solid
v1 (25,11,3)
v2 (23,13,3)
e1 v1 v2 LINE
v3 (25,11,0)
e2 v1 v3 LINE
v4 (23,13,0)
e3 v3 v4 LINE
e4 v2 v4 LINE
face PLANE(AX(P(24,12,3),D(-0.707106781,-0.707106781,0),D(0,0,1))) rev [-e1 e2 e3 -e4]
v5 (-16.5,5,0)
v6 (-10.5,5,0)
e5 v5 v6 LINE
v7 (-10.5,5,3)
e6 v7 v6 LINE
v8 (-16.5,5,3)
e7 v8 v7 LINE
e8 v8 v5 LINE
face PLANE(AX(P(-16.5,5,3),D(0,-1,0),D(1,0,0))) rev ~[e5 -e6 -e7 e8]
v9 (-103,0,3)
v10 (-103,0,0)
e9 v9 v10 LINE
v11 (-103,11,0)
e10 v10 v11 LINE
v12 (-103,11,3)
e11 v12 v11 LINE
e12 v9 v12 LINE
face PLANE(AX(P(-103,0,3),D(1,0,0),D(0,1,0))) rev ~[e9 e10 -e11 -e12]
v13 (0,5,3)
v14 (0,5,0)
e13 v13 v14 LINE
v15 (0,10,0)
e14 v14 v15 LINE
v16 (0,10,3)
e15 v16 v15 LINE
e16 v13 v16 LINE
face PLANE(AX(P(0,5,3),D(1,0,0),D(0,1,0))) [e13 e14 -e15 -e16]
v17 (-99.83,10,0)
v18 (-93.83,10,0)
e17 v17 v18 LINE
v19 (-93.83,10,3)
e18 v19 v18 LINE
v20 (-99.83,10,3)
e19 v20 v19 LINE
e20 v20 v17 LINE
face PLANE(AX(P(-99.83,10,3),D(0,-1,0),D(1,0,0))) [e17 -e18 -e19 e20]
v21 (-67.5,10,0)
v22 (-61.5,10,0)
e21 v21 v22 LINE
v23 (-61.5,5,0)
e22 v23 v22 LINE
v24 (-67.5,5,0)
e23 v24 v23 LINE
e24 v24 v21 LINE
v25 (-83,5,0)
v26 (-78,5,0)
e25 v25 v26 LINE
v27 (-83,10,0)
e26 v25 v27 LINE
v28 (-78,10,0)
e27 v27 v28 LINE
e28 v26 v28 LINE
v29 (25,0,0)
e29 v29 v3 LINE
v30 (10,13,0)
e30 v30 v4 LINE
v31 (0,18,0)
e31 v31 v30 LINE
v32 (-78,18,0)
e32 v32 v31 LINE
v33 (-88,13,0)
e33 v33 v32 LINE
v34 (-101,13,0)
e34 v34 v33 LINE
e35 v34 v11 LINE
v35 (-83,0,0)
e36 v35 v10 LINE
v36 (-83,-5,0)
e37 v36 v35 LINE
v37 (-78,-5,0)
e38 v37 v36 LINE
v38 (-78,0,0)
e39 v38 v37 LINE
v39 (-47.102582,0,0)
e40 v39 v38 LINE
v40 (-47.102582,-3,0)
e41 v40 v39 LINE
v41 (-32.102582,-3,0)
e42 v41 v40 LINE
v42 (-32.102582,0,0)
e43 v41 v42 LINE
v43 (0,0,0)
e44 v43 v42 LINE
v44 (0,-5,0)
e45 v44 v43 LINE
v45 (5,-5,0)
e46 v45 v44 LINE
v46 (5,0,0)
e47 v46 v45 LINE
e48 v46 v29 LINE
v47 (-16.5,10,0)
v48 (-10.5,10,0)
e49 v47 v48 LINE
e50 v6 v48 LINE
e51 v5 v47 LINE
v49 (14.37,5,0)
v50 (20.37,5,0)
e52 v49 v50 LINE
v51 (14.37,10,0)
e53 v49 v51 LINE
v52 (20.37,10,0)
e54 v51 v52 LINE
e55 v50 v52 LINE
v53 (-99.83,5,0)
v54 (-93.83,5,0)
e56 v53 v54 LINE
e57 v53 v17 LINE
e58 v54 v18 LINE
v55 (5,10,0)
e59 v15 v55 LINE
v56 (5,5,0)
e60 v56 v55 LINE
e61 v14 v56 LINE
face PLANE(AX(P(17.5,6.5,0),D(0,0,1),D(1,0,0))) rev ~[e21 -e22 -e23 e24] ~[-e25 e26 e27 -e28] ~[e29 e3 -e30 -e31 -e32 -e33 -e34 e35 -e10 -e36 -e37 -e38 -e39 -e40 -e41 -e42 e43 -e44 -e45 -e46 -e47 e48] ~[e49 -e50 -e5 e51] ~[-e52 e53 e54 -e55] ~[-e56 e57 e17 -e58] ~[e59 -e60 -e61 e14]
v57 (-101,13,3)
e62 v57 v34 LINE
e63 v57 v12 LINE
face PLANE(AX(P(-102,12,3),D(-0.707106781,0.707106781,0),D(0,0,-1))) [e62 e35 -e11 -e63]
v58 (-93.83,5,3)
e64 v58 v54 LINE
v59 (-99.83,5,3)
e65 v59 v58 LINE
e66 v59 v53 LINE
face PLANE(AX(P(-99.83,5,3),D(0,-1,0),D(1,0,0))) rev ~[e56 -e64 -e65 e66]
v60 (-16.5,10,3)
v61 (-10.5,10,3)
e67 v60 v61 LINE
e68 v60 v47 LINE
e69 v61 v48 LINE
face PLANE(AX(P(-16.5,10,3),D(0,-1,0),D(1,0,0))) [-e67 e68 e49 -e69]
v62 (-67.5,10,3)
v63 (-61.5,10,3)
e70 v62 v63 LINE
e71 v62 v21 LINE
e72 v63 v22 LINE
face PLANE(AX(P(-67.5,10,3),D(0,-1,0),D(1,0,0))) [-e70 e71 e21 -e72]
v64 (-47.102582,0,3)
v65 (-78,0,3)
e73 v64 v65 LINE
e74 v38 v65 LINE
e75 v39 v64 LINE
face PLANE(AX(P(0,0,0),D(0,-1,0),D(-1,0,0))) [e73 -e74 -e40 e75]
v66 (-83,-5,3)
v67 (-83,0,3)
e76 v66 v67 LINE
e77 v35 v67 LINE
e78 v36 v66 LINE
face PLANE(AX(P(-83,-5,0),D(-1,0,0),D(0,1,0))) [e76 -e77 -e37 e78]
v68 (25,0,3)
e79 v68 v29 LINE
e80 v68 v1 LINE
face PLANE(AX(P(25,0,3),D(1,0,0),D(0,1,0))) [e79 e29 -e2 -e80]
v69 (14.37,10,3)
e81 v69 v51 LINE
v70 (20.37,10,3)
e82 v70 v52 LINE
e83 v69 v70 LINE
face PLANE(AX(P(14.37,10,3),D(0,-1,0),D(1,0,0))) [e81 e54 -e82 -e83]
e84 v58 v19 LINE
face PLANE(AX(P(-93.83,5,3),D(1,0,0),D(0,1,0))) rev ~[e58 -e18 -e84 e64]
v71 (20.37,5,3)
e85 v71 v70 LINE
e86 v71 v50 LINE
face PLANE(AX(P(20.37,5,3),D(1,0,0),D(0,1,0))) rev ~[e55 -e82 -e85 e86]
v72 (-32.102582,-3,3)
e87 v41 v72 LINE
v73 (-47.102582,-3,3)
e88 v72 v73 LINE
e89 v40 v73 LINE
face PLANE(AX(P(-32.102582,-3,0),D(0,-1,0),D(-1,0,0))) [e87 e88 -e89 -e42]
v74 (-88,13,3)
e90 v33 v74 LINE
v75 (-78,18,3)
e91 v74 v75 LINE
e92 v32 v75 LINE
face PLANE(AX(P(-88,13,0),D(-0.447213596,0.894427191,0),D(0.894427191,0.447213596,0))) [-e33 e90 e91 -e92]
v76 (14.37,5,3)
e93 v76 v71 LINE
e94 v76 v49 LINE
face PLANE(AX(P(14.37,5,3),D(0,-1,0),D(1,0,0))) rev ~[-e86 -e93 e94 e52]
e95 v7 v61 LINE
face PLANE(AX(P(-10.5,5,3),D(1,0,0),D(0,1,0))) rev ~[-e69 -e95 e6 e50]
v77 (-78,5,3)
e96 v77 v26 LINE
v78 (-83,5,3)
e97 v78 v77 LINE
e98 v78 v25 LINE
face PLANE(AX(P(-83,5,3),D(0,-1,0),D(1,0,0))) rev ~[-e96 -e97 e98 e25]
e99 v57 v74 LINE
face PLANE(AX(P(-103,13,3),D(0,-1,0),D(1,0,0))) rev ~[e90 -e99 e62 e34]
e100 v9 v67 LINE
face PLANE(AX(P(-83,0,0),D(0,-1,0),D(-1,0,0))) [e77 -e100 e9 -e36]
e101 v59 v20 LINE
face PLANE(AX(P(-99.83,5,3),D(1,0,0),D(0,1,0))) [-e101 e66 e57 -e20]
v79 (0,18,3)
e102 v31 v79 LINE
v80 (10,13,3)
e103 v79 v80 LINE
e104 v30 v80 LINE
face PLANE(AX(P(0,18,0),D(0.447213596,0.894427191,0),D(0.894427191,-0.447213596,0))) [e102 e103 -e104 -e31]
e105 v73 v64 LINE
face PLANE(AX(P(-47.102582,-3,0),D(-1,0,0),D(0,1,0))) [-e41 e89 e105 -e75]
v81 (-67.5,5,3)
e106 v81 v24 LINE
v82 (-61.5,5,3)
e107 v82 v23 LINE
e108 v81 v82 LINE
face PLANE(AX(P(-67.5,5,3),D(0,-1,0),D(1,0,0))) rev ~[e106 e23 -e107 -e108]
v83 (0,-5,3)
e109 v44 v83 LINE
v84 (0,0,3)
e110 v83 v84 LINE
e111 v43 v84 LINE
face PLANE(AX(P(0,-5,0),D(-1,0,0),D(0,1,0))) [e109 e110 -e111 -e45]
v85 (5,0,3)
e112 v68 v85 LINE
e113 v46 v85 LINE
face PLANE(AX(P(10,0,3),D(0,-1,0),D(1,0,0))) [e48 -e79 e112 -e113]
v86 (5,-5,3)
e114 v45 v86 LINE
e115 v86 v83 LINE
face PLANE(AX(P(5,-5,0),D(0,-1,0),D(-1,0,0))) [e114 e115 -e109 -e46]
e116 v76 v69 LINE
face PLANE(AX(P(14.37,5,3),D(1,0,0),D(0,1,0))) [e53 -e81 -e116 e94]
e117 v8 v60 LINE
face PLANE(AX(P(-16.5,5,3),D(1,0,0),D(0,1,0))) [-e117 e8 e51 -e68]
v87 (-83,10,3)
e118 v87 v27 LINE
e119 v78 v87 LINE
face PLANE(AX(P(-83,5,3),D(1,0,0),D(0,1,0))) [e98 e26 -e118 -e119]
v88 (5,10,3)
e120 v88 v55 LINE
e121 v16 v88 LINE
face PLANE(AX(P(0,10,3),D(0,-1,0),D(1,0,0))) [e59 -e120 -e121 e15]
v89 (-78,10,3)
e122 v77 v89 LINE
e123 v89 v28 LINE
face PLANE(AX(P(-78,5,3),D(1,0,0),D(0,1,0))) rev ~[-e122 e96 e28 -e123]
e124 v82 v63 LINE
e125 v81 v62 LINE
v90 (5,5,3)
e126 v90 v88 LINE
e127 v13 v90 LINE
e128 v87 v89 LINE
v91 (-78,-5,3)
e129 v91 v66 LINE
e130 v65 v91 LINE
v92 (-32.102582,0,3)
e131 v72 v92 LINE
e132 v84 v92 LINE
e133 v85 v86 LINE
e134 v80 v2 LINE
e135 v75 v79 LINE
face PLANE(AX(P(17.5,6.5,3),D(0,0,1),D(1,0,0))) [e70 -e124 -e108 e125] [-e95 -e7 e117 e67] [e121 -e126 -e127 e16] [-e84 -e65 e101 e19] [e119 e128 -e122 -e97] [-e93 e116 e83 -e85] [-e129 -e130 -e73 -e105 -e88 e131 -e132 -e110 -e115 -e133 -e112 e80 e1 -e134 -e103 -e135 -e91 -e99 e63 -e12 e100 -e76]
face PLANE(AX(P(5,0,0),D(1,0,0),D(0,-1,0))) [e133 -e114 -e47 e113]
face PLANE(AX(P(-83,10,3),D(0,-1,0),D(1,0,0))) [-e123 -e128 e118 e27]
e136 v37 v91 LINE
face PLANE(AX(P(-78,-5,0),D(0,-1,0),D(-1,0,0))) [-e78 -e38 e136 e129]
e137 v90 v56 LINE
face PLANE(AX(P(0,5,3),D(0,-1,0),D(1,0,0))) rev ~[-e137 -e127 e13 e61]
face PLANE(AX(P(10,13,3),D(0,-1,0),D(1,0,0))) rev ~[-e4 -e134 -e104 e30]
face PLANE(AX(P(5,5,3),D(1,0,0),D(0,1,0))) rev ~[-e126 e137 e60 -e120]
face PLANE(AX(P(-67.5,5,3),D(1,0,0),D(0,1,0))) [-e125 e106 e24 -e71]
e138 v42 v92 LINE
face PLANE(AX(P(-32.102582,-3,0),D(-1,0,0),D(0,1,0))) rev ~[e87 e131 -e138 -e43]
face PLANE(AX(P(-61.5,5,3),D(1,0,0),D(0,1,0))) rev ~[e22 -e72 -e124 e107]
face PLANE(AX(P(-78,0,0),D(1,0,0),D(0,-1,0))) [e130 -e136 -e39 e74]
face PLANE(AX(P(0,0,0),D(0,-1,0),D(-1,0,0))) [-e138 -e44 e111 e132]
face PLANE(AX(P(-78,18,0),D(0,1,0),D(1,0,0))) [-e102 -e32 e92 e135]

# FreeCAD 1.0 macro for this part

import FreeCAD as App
import Part
import Sketcher

V = App.Vector
Q = App.Units.Quantity


def edges_at(feature, points):
    """Names of the edges that pass closest to the given points."""
    edges = feature.Shape.Edges
    near = lambda p: min(range(len(edges)), key=lambda i: edges[i].distToShape(Part.Vertex(*p))[0])
    return sorted({f"Edge{near(p) + 1}" for p in points})

doc = App.newDocument("Part")
body = doc.addObject("PartDesign::Body", "Body")

# Sketch on XY plane
sketch1 = doc.addObject("Sketcher::SketchObject", "Sketch")
body.addObject(sketch1)
sketch1.AttachmentSupport = (doc.XY_Plane, [""])
sketch1.MapMode = "FlatFace"
sketch1.addGeometry([
    Part.LineSegment(V(-78, 0, 0), V(0, 0, 0)),  # 0
    Part.LineSegment(V(0, 0, 0), V(0, -5, 0)),  # 1
    Part.LineSegment(V(0, -5, 0), V(5, -5, 0)),  # 2
    Part.LineSegment(V(5, -5, 0), V(5, 0, 0)),  # 3
    Part.LineSegment(V(5, 0, 0), V(10, 0, 0)),  # 4
    Part.LineSegment(V(10, 0, 0), V(10, 13, 0)),  # 5
    Part.LineSegment(V(10, 13, 0), V(0, 18, 0)),  # 6
    Part.LineSegment(V(0, 18, 0), V(-78, 18, 0)),  # 7
    Part.LineSegment(V(-78, 18, 0), V(-88, 13, 0)),  # 8
    Part.LineSegment(V(-88, 13, 0), V(-88, 0, 0)),  # 9
    Part.LineSegment(V(-88, 0, 0), V(-83, 0, 0)),  # 10
    Part.LineSegment(V(-83, 0, 0), V(-83, -5, 0)),  # 11
    Part.LineSegment(V(-83, -5, 0), V(-78, -5, 0)),  # 12
    Part.LineSegment(V(-78, -5, 0), V(-78, 0, 0)),  # 13
], False)
sketch1.addConstraint([
    Sketcher.Constraint("Coincident", 0, 2, 1, 1),
    Sketcher.Constraint("Coincident", 1, 2, 2, 1),
    Sketcher.Constraint("Coincident", 2, 2, 3, 1),
    Sketcher.Constraint("Coincident", 3, 2, 4, 1),
    Sketcher.Constraint("Coincident", 4, 2, 5, 1),
    Sketcher.Constraint("Coincident", 5, 2, 6, 1),
    Sketcher.Constraint("Coincident", 6, 2, 7, 1),
    Sketcher.Constraint("Coincident", 7, 2, 8, 1),
    Sketcher.Constraint("Coincident", 8, 2, 9, 1),
    Sketcher.Constraint("Coincident", 9, 2, 10, 1),
    Sketcher.Constraint("Coincident", 10, 2, 11, 1),
    Sketcher.Constraint("Coincident", 11, 2, 12, 1),
    Sketcher.Constraint("Coincident", 12, 2, 13, 1),
    Sketcher.Constraint("Coincident", 13, 2, 0, 1),
    Sketcher.Constraint("Horizontal", 0),
    Sketcher.Constraint("Vertical", 1),
    Sketcher.Constraint("Horizontal", 2),
    Sketcher.Constraint("Vertical", 3),
    Sketcher.Constraint("Horizontal", 4),
    Sketcher.Constraint("Vertical", 5),
    Sketcher.Constraint("Horizontal", 7),
    Sketcher.Constraint("Vertical", 9),
    Sketcher.Constraint("Horizontal", 10),
    Sketcher.Constraint("Vertical", 11),
    Sketcher.Constraint("Horizontal", 12),
    Sketcher.Constraint("Vertical", 13),
    Sketcher.Constraint("Coincident", 0, 2, -1, 1),
    Sketcher.Constraint("PointOnObject", 3, 2, -1),
    Sketcher.Constraint("PointOnObject", 6, 2, -2),
    Sketcher.Constraint("PointOnObject", 9, 2, -1),
    Sketcher.Constraint("Horizontal", 5, 2, 8, 2),
    Sketcher.Constraint("Horizontal", 2, 2, 11, 2),
    Sketcher.Constraint("Vertical", 7, 2, 12, 2),
    Sketcher.Constraint("Equal", 2, 4),
    Sketcher.Constraint("Equal", 4, 10),
    Sketcher.Constraint("Equal", 10, 12),
    Sketcher.Constraint("Equal", 12, 1),
    Sketcher.Constraint("DistanceX", 0, 1, 0, 2, Q("78 mm")),
    Sketcher.Constraint("DistanceX", 2, 1, 2, 2, Q("5 mm")),
    Sketcher.Constraint("DistanceY", 5, 1, 5, 2, Q("13 mm")),
    Sketcher.Constraint("DistanceY", -1, 1, 6, 2, Q("18 mm")),
])
pad1 = doc.addObject("PartDesign::Pad", "Pad")
body.addObject(pad1)
pad1.Profile = sketch1
pad1.Length = 3

# Sketch on XY plane
sketch2 = doc.addObject("Sketcher::SketchObject", "Sketch001")
body.addObject(sketch2)
sketch2.AttachmentSupport = (doc.XY_Plane, [""])
sketch2.MapMode = "FlatFace"
sketch2.AttachmentOffset = App.Placement(V(0, 0, 3), App.Rotation())
sketch2.addGeometry([
    Part.LineSegment(V(10, 13, 0), V(10, 0, 0)),  # 0
    Part.LineSegment(V(10, 0, 0), V(25, 0, 0)),  # 1
    Part.LineSegment(V(25, 0, 0), V(25, 13, 0)),  # 2
    Part.LineSegment(V(25, 13, 0), V(10, 13, 0)),  # 3
    Part.LineSegment(V(-103, 13, 0), V(-103, 0, 0)),  # 4
    Part.LineSegment(V(-103, 0, 0), V(-88, 0, 0)),  # 5
    Part.LineSegment(V(-88, 0, 0), V(-88, 13, 0)),  # 6
    Part.LineSegment(V(-88, 13, 0), V(-103, 13, 0)),  # 7
], False)
sketch2.addConstraint([
    Sketcher.Constraint("Coincident", 0, 2, 1, 1),
    Sketcher.Constraint("Coincident", 1, 2, 2, 1),
    Sketcher.Constraint("Coincident", 2, 2, 3, 1),
    Sketcher.Constraint("Coincident", 3, 2, 0, 1),
    Sketcher.Constraint("Coincident", 4, 2, 5, 1),
    Sketcher.Constraint("Coincident", 5, 2, 6, 1),
    Sketcher.Constraint("Coincident", 6, 2, 7, 1),
    Sketcher.Constraint("Coincident", 7, 2, 4, 1),
    Sketcher.Constraint("Vertical", 0),
    Sketcher.Constraint("Horizontal", 1),
    Sketcher.Constraint("Vertical", 2),
    Sketcher.Constraint("Horizontal", 3),
    Sketcher.Constraint("Vertical", 4),
    Sketcher.Constraint("Horizontal", 5),
    Sketcher.Constraint("Vertical", 6),
    Sketcher.Constraint("Horizontal", 7),
    Sketcher.Constraint("PointOnObject", 0, 2, -1),
    Sketcher.Constraint("PointOnObject", 4, 2, -1),
    Sketcher.Constraint("Horizontal", 3, 2, 6, 2),
    Sketcher.Constraint("Equal", 3, 5),
    Sketcher.Constraint("DistanceX", 1, 1, 1, 2, Q("15 mm")),
    Sketcher.Constraint("DistanceY", 0, 2, 0, 1, Q("13 mm")),
    Sketcher.Constraint("DistanceX", -1, 1, 0, 2, Q("10 mm")),
    Sketcher.Constraint("DistanceX", 4, 2, -1, 1, Q("103 mm")),
])
pad2 = doc.addObject("PartDesign::Pad", "Pad001")
body.addObject(pad2)
pad2.Profile = sketch2
pad2.Length = 3
pad2.Reversed = True

# Sketch on XY plane
sketch3 = doc.addObject("Sketcher::SketchObject", "Sketch002")
body.addObject(sketch3)
sketch3.AttachmentSupport = (doc.XY_Plane, [""])
sketch3.MapMode = "FlatFace"
sketch3.AttachmentOffset = App.Placement(V(0, 0, 3), App.Rotation())
sketch3.addGeometry([
    Part.LineSegment(V(-68, 10, 0), V(-68, 5, 0)),  # 0
    Part.LineSegment(V(-68, 5, 0), V(-62, 5, 0)),  # 1
    Part.LineSegment(V(-62, 5, 0), V(-62, 10, 0)),  # 2
    Part.LineSegment(V(-62, 10, 0), V(-68, 10, 0)),  # 3
    Part.LineSegment(V(-16, 10, 0), V(-16, 5, 0)),  # 4
    Part.LineSegment(V(-16, 5, 0), V(-10, 5, 0)),  # 5
    Part.LineSegment(V(-10, 5, 0), V(-10, 10, 0)),  # 6
    Part.LineSegment(V(-10, 10, 0), V(-16, 10, 0)),  # 7
    Part.LineSegment(V(0, 10, 0), V(0, 5, 0)),  # 8
    Part.LineSegment(V(0, 5, 0), V(5, 5, 0)),  # 9
    Part.LineSegment(V(5, 5, 0), V(5, 10, 0)),  # 10
    Part.LineSegment(V(5, 10, 0), V(0, 10, 0)),  # 11
    Part.LineSegment(V(-83, 10, 0), V(-83, 5, 0)),  # 12
    Part.LineSegment(V(-83, 5, 0), V(-78, 5, 0)),  # 13
    Part.LineSegment(V(-78, 5, 0), V(-78, 10, 0)),  # 14
    Part.LineSegment(V(-78, 10, 0), V(-83, 10, 0)),  # 15
    Part.LineSegment(V(14, 10, 0), V(14, 5, 0)),  # 16
    Part.LineSegment(V(14, 5, 0), V(20, 5, 0)),  # 17
    Part.LineSegment(V(20, 5, 0), V(20, 10, 0)),  # 18
    Part.LineSegment(V(20, 10, 0), V(14, 10, 0)),  # 19
    Part.LineSegment(V(-100, 10, 0), V(-100, 5, 0)),  # 20
    Part.LineSegment(V(-100, 5, 0), V(-94, 5, 0)),  # 21
    Part.LineSegment(V(-94, 5, 0), V(-94, 10, 0)),  # 22
    Part.LineSegment(V(-94, 10, 0), V(-100, 10, 0)),  # 23
], False)
sketch3.addConstraint([
    Sketcher.Constraint("Coincident", 0, 2, 1, 1),
    Sketcher.Constraint("Coincident", 1, 2, 2, 1),
    Sketcher.Constraint("Coincident", 2, 2, 3, 1),
    Sketcher.Constraint("Coincident", 3, 2, 0, 1),
    Sketcher.Constraint("Coincident", 4, 2, 5, 1),
    Sketcher.Constraint("Coincident", 5, 2, 6, 1),
    Sketcher.Constraint("Coincident", 6, 2, 7, 1),
    Sketcher.Constraint("Coincident", 7, 2, 4, 1),
    Sketcher.Constraint("Coincident", 8, 2, 9, 1),
    Sketcher.Constraint("Coincident", 9, 2, 10, 1),
    Sketcher.Constraint("Coincident", 10, 2, 11, 1),
    Sketcher.Constraint("Coincident", 11, 2, 8, 1),
    Sketcher.Constraint("Coincident", 12, 2, 13, 1),
    Sketcher.Constraint("Coincident", 13, 2, 14, 1),
    Sketcher.Constraint("Coincident", 14, 2, 15, 1),
    Sketcher.Constraint("Coincident", 15, 2, 12, 1),
    Sketcher.Constraint("Coincident", 16, 2, 17, 1),
    Sketcher.Constraint("Coincident", 17, 2, 18, 1),
    Sketcher.Constraint("Coincident", 18, 2, 19, 1),
    Sketcher.Constraint("Coincident", 19, 2, 16, 1),
    Sketcher.Constraint("Coincident", 20, 2, 21, 1),
    Sketcher.Constraint("Coincident", 21, 2, 22, 1),
    Sketcher.Constraint("Coincident", 22, 2, 23, 1),
    Sketcher.Constraint("Coincident", 23, 2, 20, 1),
    Sketcher.Constraint("Vertical", 0),
    Sketcher.Constraint("Horizontal", 1),
    Sketcher.Constraint("Vertical", 2),
    Sketcher.Constraint("Horizontal", 3),
    Sketcher.Constraint("Vertical", 4),
    Sketcher.Constraint("Horizontal", 5),
    Sketcher.Constraint("Vertical", 6),
    Sketcher.Constraint("Horizontal", 7),
    Sketcher.Constraint("Vertical", 8),
    Sketcher.Constraint("Horizontal", 9),
    Sketcher.Constraint("Vertical", 10),
    Sketcher.Constraint("Horizontal", 11),
    Sketcher.Constraint("Vertical", 12),
    Sketcher.Constraint("Horizontal", 13),
    Sketcher.Constraint("Vertical", 14),
    Sketcher.Constraint("Horizontal", 15),
    Sketcher.Constraint("Vertical", 16),
    Sketcher.Constraint("Horizontal", 17),
    Sketcher.Constraint("Vertical", 18),
    Sketcher.Constraint("Horizontal", 19),
    Sketcher.Constraint("Vertical", 20),
    Sketcher.Constraint("Horizontal", 21),
    Sketcher.Constraint("Vertical", 22),
    Sketcher.Constraint("Horizontal", 23),
    Sketcher.Constraint("PointOnObject", 8, 2, -2),
    Sketcher.Constraint("Horizontal", 1, 2, 4, 2),
    Sketcher.Constraint("Horizontal", 3, 2, 6, 2),
    Sketcher.Constraint("Horizontal", 5, 2, 8, 2),
    Sketcher.Constraint("Horizontal", 7, 2, 10, 2),
    Sketcher.Constraint("Horizontal", 9, 2, 12, 2),
    Sketcher.Constraint("Horizontal", 11, 2, 14, 2),
    Sketcher.Constraint("Horizontal", 13, 2, 16, 2),
    Sketcher.Constraint("Horizontal", 15, 2, 18, 2),
    Sketcher.Constraint("Horizontal", 17, 2, 20, 2),
    Sketcher.Constraint("Horizontal", 19, 2, 22, 2),
    Sketcher.Constraint("Equal", 3, 5),
    Sketcher.Constraint("Equal", 11, 13),
    Sketcher.Constraint("Equal", 7, 17),
    Sketcher.Constraint("Equal", 19, 21),
    Sketcher.Constraint("Equal", 15, 0),
    Sketcher.Constraint("DistanceX", 1, 1, 1, 2, Q("6 mm")),
    Sketcher.Constraint("DistanceX", 9, 1, 9, 2, Q("5 mm")),
    Sketcher.Constraint("DistanceY", -1, 1, 0, 2, Q("5 mm")),
    Sketcher.Constraint("DistanceX", 12, 2, -1, 1, Q("83 mm")),
    Sketcher.Constraint("DistanceX", 1, 2, 4, 2, Q("45 mm")),
    Sketcher.Constraint("DistanceX", 0, 2, -1, 1, Q("67.5 mm")),
    Sketcher.Constraint("DistanceX", -1, 1, 16, 2, Q("14.37 mm")),
    Sketcher.Constraint("DistanceX", 20, 2, -1, 1, Q("99.83 mm")),
])
pocket1 = doc.addObject("PartDesign::Pocket", "Pocket")
body.addObject(pocket1)
pocket1.Profile = sketch3
pocket1.Length = 3
doc.recompute()

chamfer = doc.addObject("PartDesign::Chamfer", "Chamfer")
body.addObject(chamfer)
chamfer.Base = (pocket1, edges_at(pocket1, [(25, 13, 1.5), (-103, 13, 1.5)]))
chamfer.Size = 2

# Sketch on XY plane
sketch4 = doc.addObject("Sketcher::SketchObject", "Sketch003")
body.addObject(sketch4)
sketch4.AttachmentSupport = (doc.XY_Plane, [""])
sketch4.MapMode = "FlatFace"
sketch4.addGeometry([
    Part.LineSegment(V(-32.1, 0, 0), V(-32.1, -3, 0)),
    Part.LineSegment(V(-32.1, -3, 0), V(-47.1, -3, 0)),
    Part.LineSegment(V(-47.1, -3, 0), V(-47.1, 0, 0)),
    Part.LineSegment(V(-47.1, 0, 0), V(-32.1, 0, 0)),
], False)
sketch4.addConstraint([
    Sketcher.Constraint("Coincident", 0, 2, 1, 1),
    Sketcher.Constraint("Coincident", 1, 2, 2, 1),
    Sketcher.Constraint("Coincident", 2, 2, 3, 1),
    Sketcher.Constraint("Coincident", 3, 2, 0, 1),
    Sketcher.Constraint("Vertical", 0),
    Sketcher.Constraint("Horizontal", 1),
    Sketcher.Constraint("Vertical", 2),
    Sketcher.Constraint("Horizontal", 3),
    Sketcher.Constraint("PointOnObject", 2, 2, -1),
    Sketcher.Constraint("DistanceX", 1, 2, 1, 1, Q("15 mm")),
    Sketcher.Constraint("DistanceY", 0, 2, 0, 1, Q("3 mm")),
    Sketcher.Constraint("DistanceX", 0, 2, -1, 1, Q("32.102582 mm")),
])
pad3 = doc.addObject("PartDesign::Pad", "Pad002")
body.addObject(pad3)
pad3.Profile = sketch4
pad3.Length = 3

doc.recompute()
